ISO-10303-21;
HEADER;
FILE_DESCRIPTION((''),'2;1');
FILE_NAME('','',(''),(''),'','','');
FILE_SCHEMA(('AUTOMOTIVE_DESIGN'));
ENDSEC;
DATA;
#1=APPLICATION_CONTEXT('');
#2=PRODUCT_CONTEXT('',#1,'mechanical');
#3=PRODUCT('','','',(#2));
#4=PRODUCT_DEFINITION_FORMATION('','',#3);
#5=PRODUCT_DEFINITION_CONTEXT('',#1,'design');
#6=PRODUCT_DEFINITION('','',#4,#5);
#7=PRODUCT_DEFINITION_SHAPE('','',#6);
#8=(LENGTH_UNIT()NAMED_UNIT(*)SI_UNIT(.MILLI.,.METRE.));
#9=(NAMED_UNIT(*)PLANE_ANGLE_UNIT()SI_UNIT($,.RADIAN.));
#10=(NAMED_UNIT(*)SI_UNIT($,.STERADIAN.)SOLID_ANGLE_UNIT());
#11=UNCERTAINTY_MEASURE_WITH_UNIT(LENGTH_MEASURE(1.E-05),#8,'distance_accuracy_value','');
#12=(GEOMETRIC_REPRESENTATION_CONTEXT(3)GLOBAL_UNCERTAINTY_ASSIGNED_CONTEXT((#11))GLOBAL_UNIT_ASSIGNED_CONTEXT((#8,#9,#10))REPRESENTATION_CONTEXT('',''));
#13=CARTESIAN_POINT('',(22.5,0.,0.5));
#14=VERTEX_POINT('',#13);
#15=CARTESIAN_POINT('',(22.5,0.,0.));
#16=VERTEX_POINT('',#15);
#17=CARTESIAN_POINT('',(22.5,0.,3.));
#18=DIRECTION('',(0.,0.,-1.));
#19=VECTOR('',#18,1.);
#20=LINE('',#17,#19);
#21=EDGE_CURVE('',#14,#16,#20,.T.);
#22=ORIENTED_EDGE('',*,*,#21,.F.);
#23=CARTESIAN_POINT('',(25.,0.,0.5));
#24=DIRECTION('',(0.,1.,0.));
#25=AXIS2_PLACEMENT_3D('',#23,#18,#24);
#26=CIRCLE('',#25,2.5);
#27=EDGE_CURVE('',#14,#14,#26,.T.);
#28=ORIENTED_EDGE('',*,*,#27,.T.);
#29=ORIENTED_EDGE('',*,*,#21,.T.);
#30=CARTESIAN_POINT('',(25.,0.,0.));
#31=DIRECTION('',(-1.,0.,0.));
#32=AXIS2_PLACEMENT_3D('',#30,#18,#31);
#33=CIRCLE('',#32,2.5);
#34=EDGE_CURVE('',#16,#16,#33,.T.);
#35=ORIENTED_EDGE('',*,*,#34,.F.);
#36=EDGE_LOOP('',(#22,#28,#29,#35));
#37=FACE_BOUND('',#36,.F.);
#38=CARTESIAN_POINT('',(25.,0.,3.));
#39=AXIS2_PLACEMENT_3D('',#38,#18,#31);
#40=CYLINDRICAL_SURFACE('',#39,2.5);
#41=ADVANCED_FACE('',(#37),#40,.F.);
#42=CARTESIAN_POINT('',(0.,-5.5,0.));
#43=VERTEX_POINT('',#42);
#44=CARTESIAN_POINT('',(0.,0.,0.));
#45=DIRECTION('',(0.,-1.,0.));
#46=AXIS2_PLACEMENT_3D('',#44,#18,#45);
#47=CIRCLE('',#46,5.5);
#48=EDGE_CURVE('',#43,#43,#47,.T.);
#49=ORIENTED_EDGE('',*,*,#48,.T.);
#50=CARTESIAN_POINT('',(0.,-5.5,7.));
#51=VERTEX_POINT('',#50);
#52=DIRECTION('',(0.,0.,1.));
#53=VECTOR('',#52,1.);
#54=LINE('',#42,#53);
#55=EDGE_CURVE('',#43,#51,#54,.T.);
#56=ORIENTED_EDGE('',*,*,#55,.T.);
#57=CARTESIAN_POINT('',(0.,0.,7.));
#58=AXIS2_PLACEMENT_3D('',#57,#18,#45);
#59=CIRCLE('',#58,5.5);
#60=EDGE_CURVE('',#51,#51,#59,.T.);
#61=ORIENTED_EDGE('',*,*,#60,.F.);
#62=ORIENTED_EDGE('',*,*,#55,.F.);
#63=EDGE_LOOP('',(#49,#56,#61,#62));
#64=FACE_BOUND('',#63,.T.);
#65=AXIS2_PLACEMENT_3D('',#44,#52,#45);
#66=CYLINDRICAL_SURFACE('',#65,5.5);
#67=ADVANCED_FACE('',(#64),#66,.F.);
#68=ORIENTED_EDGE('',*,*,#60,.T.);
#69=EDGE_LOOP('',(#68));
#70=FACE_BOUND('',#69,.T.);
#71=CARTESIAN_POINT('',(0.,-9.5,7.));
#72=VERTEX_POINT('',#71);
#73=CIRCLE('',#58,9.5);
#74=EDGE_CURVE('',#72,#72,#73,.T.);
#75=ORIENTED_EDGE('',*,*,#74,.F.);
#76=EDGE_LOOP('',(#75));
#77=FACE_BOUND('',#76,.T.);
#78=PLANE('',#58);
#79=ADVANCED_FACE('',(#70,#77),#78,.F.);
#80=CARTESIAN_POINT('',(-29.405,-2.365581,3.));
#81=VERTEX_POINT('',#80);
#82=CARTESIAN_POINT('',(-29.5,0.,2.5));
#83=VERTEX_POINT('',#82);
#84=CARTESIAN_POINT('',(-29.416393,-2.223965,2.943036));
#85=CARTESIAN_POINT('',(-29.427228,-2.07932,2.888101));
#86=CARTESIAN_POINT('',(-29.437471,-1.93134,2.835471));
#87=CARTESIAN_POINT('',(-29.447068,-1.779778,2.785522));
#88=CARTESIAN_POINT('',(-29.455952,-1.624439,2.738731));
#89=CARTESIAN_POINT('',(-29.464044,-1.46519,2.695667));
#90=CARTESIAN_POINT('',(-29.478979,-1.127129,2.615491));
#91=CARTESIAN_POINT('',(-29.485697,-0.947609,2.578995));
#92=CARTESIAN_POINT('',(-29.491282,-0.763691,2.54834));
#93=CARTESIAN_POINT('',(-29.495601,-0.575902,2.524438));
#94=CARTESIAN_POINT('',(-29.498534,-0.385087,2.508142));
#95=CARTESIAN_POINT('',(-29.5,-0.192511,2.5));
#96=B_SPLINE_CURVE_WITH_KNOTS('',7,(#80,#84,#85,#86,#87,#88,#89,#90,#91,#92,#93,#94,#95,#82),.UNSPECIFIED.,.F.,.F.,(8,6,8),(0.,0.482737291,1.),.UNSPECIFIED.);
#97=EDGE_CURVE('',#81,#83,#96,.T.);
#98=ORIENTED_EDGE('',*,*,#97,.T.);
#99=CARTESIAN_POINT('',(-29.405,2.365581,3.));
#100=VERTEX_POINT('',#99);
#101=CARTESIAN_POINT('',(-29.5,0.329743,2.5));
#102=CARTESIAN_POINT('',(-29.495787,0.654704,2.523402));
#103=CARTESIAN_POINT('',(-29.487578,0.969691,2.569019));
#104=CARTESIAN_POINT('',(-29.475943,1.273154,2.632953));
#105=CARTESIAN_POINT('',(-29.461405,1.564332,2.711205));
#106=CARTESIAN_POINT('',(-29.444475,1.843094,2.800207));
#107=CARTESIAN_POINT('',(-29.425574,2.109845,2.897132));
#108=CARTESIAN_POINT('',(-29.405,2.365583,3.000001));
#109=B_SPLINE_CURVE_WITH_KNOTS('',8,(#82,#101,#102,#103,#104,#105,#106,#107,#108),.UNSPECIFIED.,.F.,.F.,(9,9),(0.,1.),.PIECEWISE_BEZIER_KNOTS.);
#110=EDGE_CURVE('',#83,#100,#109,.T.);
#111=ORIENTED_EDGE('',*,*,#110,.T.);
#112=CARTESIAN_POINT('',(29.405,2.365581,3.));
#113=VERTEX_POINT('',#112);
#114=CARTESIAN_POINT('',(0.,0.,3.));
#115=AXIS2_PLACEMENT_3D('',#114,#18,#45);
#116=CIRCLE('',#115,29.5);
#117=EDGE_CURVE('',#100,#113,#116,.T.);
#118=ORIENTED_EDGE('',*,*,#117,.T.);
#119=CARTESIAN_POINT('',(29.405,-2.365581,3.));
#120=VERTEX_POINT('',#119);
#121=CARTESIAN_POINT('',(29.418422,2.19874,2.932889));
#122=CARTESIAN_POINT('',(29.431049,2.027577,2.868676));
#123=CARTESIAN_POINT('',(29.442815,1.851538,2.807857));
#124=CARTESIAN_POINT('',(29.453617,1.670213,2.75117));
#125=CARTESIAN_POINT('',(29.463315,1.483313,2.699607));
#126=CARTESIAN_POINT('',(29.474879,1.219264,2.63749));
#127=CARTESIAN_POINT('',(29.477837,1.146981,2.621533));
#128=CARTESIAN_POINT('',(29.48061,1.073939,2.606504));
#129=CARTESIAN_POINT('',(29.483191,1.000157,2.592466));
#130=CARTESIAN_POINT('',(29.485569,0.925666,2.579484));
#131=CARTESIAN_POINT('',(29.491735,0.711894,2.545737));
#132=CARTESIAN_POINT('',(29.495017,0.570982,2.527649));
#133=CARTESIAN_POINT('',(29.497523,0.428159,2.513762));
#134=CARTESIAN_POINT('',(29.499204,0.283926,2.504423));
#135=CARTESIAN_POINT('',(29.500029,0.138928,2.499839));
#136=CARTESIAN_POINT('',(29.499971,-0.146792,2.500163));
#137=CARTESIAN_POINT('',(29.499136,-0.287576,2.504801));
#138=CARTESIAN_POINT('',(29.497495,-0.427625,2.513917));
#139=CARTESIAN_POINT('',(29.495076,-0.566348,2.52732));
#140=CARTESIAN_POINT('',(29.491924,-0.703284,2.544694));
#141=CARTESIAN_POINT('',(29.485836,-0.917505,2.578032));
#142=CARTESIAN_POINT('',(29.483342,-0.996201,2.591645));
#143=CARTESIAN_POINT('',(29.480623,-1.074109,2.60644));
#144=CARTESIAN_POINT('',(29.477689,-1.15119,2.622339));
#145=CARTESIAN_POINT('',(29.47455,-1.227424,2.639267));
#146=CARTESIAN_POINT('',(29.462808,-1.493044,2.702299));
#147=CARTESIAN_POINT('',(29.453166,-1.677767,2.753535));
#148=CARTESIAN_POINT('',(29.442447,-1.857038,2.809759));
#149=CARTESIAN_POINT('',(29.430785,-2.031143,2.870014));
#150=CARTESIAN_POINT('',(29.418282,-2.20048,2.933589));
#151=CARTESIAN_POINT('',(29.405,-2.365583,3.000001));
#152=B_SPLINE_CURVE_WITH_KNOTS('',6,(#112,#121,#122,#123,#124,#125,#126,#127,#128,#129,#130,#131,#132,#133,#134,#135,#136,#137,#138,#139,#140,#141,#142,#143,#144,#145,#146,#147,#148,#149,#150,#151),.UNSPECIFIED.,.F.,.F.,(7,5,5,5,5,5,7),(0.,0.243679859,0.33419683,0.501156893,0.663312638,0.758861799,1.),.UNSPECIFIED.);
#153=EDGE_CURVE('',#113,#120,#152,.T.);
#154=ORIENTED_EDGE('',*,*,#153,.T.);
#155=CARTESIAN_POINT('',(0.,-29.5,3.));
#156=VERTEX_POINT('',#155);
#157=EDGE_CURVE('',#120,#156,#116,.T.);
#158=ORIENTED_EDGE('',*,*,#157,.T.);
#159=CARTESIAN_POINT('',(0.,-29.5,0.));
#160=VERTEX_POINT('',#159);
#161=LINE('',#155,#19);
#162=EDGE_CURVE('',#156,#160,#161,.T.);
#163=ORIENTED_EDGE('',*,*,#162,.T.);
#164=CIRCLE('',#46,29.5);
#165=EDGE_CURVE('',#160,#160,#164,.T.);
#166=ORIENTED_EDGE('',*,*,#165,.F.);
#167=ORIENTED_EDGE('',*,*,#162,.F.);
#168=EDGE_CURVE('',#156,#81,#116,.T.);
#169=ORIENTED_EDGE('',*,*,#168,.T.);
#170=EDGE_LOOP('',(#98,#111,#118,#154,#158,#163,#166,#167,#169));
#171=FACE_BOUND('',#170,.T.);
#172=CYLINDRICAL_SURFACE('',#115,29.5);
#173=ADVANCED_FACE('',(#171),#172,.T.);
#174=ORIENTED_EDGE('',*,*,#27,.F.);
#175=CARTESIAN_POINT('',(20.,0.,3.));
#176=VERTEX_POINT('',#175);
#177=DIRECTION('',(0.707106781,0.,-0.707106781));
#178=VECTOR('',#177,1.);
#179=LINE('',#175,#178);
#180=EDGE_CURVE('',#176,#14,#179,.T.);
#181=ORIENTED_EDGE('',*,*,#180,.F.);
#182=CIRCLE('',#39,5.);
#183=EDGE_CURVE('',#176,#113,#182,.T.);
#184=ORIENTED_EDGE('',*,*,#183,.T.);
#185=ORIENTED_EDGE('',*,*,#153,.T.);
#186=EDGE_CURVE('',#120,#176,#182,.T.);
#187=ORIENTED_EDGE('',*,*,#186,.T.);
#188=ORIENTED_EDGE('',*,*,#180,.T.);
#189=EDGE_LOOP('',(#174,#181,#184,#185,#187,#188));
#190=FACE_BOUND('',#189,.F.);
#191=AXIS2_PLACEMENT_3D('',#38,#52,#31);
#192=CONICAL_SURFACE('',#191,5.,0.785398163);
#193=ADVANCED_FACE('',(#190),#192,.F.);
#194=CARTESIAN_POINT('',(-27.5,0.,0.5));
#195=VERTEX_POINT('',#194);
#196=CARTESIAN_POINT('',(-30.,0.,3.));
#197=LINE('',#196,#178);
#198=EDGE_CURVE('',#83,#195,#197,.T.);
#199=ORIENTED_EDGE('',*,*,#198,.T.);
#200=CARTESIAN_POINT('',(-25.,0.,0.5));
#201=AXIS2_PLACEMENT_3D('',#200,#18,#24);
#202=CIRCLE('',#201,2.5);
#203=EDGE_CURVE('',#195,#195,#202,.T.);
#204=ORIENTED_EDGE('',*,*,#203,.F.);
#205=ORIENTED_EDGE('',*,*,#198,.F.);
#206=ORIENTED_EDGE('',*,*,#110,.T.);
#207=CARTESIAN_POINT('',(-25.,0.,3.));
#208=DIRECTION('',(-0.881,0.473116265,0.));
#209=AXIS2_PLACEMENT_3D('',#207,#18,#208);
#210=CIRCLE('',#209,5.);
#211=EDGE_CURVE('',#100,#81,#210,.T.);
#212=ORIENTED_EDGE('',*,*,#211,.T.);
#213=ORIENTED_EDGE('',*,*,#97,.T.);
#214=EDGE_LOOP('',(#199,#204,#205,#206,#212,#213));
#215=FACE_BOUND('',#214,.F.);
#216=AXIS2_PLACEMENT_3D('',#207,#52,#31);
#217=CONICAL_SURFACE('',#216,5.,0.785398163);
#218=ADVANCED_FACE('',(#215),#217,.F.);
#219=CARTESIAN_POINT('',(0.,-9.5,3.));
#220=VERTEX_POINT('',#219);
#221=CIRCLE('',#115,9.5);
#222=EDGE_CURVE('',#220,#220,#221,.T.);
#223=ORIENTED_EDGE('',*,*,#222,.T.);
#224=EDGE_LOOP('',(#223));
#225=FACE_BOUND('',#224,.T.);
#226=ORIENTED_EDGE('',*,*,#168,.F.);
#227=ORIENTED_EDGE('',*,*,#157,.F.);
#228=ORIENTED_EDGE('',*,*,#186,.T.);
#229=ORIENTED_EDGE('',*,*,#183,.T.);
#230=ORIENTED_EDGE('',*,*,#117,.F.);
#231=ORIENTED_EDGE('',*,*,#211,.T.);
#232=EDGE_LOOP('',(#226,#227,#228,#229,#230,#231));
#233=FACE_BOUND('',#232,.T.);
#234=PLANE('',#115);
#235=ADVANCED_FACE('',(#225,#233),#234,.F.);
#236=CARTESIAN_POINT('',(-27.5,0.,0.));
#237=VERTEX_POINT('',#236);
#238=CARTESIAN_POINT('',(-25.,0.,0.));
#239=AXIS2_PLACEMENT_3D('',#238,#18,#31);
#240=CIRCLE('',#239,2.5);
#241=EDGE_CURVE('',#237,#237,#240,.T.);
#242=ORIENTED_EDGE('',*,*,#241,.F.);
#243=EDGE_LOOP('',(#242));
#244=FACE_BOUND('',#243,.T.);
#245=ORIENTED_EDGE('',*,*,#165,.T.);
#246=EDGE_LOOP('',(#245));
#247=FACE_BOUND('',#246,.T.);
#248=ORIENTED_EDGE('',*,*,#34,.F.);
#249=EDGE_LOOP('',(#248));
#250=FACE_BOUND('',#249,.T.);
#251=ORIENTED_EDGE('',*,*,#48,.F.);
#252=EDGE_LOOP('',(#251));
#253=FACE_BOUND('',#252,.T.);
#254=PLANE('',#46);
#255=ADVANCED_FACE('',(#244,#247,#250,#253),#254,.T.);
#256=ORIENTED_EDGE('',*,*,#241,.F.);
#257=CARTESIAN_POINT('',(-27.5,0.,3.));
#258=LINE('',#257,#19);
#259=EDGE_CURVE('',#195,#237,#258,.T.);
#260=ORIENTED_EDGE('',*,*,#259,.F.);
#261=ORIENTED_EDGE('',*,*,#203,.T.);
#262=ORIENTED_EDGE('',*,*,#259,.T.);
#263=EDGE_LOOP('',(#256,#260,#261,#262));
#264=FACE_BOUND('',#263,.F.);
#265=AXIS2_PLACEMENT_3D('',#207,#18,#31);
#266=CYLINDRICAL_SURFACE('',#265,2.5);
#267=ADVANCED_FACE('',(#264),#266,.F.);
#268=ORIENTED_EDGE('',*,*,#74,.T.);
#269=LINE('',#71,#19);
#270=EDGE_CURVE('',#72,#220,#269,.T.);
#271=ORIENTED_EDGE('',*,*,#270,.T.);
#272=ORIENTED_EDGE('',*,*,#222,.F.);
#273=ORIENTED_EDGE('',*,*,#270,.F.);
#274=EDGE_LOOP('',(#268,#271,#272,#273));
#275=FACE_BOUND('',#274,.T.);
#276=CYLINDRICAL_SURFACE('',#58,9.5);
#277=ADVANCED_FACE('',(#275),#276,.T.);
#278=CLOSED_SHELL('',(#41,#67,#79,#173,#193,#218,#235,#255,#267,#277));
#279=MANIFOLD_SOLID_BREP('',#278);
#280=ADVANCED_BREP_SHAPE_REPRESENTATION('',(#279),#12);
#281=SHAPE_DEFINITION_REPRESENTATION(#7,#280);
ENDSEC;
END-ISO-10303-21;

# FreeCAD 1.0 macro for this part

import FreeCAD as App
import Part
import Sketcher
from FreeCAD import Vector

doc = App.newDocument("Part")
params = doc.addObject("Spreadsheet::Sheet", "Params")
for row, (alias, value) in enumerate([
    ("sketch1_width", "24 mm"),
    ("sketch1_width2", "4 mm"),
    ("sketch1_height", "3 mm"),
    ("revolution_angle", "360 deg"),
    ("sketch2_diameter", "5 mm"),
    ("hole_diameter", "5 mm"),
    ("hole_csink_diameter", "10 mm"),
], start=1):
    params.set(f"A{row}", alias)
    params.set(f"B{row}", "=" + value)
    params.setAlias(f"B{row}", alias)

body = doc.addObject("PartDesign::Body", "Body")

# Sketch on YZ plane
sketch1 = doc.addObject("Sketcher::SketchObject", "Sketch")
body.addObject(sketch1)
sketch1.AttachmentSupport = (doc.YZ_Plane, [""])
sketch1.MapMode = "FlatFace"
sketch1.addGeometry(Part.LineSegment(Vector(-29.5, 3, 0), Vector(-29.5, 0, 0)), False)
sketch1.addGeometry(Part.LineSegment(Vector(-29.5, 0, 0), Vector(-5.5, 0, 0)), False)
sketch1.addGeometry(Part.LineSegment(Vector(-5.5, 0, 0), Vector(-5.5, 7, 0)), False)
sketch1.addGeometry(Part.LineSegment(Vector(-5.5, 7, 0), Vector(-9.5, 7, 0)), False)
sketch1.addGeometry(Part.LineSegment(Vector(-9.5, 7, 0), Vector(-9.5, 3, 0)), False)
sketch1.addGeometry(Part.LineSegment(Vector(-9.5, 3, 0), Vector(-29.5, 3, 0)), False)
sketch1.addConstraint(Sketcher.Constraint("Coincident", 0, 2, 1, 1))
sketch1.addConstraint(Sketcher.Constraint("Coincident", 1, 2, 2, 1))
sketch1.addConstraint(Sketcher.Constraint("Coincident", 2, 2, 3, 1))
sketch1.addConstraint(Sketcher.Constraint("Coincident", 3, 2, 4, 1))
sketch1.addConstraint(Sketcher.Constraint("Coincident", 4, 2, 5, 1))
sketch1.addConstraint(Sketcher.Constraint("Coincident", 5, 2, 0, 1))
sketch1.addConstraint(Sketcher.Constraint("Vertical", 0))
sketch1.addConstraint(Sketcher.Constraint("Horizontal", 1))
sketch1.addConstraint(Sketcher.Constraint("Vertical", 2))
sketch1.addConstraint(Sketcher.Constraint("Horizontal", 3))
sketch1.addConstraint(Sketcher.Constraint("Vertical", 4))
sketch1.addConstraint(Sketcher.Constraint("Horizontal", 5))
sketch1.addConstraint(Sketcher.Constraint("PointOnObject", 0, 2, -1))
sketch1.addConstraint(Sketcher.Constraint("Equal", 3, 4))
sketch1.addConstraint(Sketcher.Constraint("DistanceX", 1, 1, 1, 2, 24.0))
sketch1.addConstraint(Sketcher.Constraint("DistanceX", 3, 2, 3, 1, 4.0))
sketch1.addConstraint(Sketcher.Constraint("DistanceY", 0, 2, 0, 1, 3.0))
sketch1.addConstraint(Sketcher.Constraint("DistanceX", 0, 2, -1, 1, 29.5))
sketch1.setExpression("Constraints[14]", "Params.sketch1_width")
sketch1.setExpression("Constraints[15]", "Params.sketch1_width2")
sketch1.setExpression("Constraints[16]", "Params.sketch1_height")
revolution = doc.addObject("PartDesign::Revolution", "Revolution")
body.addObject(revolution)
revolution.Profile = sketch1
revolution.ReferenceAxis = (sketch1, ["V_Axis"])
revolution.setExpression("Angle", "Params.revolution_angle")

# Sketch on XY plane
sketch2 = doc.addObject("Sketcher::SketchObject", "Sketch001")
body.addObject(sketch2)
sketch2.AttachmentSupport = (doc.XY_Plane, [""])
sketch2.MapMode = "FlatFace"
sketch2.AttachmentOffset = App.Placement(Vector(0, 0, 3), App.Rotation())
sketch2.addGeometry(Part.Circle(Vector(-25, 0, 0), Vector(0, 0, 1), 2.5), False)
sketch2.addGeometry(Part.Circle(Vector(25, 0, 0), Vector(0, 0, 1), 2.5), False)
sketch2.addConstraint(Sketcher.Constraint("Equal", 0, 1))
sketch2.addConstraint(Sketcher.Constraint("Symmetric", 0, 3, 1, 3, -1, 1))
sketch2.addConstraint(Sketcher.Constraint("PointOnObject", 0, 3, -1))
sketch2.addConstraint(Sketcher.Constraint("Diameter", 0, 5.0))
sketch2.addConstraint(Sketcher.Constraint("DistanceX", 0, 3, -1, 1, 25.0))
sketch2.setExpression("Constraints[3]", "Params.sketch2_diameter")
doc.recompute()
hole = doc.addObject("PartDesign::Hole", "Hole")
body.addObject(hole)
hole.Profile = sketch2
hole.ThreadType = "None"
hole.setExpression("Diameter", "Params.hole_diameter")
hole.DepthType = "ThroughAll"
hole.HoleCutType = "Countersink"
hole.setExpression("HoleCutDiameter", "Params.hole_csink_diameter")
hole.HoleCutCountersinkAngle = 90

doc.recompute()
